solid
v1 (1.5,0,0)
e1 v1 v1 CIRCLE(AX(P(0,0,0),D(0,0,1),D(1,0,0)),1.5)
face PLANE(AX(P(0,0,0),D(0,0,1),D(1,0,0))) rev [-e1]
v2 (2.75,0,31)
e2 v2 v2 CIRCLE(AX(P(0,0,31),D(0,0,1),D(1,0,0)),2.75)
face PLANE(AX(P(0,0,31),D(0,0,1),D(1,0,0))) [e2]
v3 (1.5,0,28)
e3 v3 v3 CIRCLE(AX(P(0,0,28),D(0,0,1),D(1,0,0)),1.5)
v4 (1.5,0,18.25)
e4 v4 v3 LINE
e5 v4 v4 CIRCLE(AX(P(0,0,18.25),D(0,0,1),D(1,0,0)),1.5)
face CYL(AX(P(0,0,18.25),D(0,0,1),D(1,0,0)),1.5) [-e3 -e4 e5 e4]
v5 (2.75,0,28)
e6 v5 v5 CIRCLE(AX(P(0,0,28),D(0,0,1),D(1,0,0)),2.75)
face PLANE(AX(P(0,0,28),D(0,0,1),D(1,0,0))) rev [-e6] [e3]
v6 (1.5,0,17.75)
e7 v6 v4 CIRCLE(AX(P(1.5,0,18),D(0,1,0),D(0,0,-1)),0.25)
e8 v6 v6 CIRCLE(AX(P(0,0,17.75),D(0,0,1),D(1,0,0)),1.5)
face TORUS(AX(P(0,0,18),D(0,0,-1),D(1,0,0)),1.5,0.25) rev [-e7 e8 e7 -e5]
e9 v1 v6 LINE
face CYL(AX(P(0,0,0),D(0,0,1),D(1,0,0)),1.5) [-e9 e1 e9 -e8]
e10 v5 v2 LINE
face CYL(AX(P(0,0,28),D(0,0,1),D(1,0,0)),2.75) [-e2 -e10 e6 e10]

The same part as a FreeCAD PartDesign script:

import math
import FreeCAD as App
import Part
import Sketcher

V = App.Vector

doc = App.newDocument("Part")
body = doc.addObject("PartDesign::Body", "Body")

sketch1 = body.newObject("Sketcher::SketchObject", "Sketch")
sketch1.AttachmentSupport = (doc.getObject("XZ_Plane"), [""])
sketch1.MapMode = "FlatFace"
sketch1.addGeometry([
    Part.LineSegment(V(0, 31, 0), V(0, 0, 0)),
    Part.LineSegment(V(0, 0, 0), V(1.5, 0, 0)),
    Part.LineSegment(V(1.5, 0, 0), V(1.5, 17.75, 0)),
    Part.ArcOfCircle(Part.Circle(V(1.5, 18, 0), V(0, 0, 1), 0.25), math.radians(90), math.radians(270)),
    Part.LineSegment(V(1.5, 18.25, 0), V(1.5, 28, 0)),
    Part.LineSegment(V(1.5, 28, 0), V(2.75, 28, 0)),
    Part.LineSegment(V(2.75, 28, 0), V(2.75, 31, 0)),
    Part.LineSegment(V(2.75, 31, 0), V(0, 31, 0)),
], False)
sketch1.addConstraint([
    Sketcher.Constraint("Coincident", 0, 2, 1, 1),
    Sketcher.Constraint("Coincident", 1, 2, 2, 1),
    Sketcher.Constraint("Coincident", 2, 2, 3, 2),
    Sketcher.Constraint("Coincident", 3, 1, 4, 1),
    Sketcher.Constraint("Coincident", 4, 2, 5, 1),
    Sketcher.Constraint("Coincident", 5, 2, 6, 1),
    Sketcher.Constraint("Coincident", 6, 2, 7, 1),
    Sketcher.Constraint("Coincident", 7, 2, 0, 1),
    Sketcher.Constraint("Vertical", 0),
    Sketcher.Constraint("Horizontal", 1),
    Sketcher.Constraint("Vertical", 2),
    Sketcher.Constraint("Vertical", 4),
    Sketcher.Constraint("Horizontal", 5),
    Sketcher.Constraint("Vertical", 6),
    Sketcher.Constraint("Horizontal", 7),
    Sketcher.Constraint("Coincident", 0, 2, -1, 1),
    Sketcher.Constraint("Vertical", 3, 3, 1, 2),
    Sketcher.Constraint("Vertical", 2, 2, 3, 1),
    Sketcher.Constraint("DistanceY", 0, 2, 0, 1, 31.0),
    Sketcher.Constraint("DistanceY", 6, 1, 6, 2, 3.0),
    Sketcher.Constraint("Radius", 3, 0.25),
    Sketcher.Constraint("DistanceX", 1, 1, 1, 2, 1.5),
    Sketcher.Constraint("DistanceY", -1, 1, 3, 3, 18.0),
    Sketcher.Constraint("DistanceX", 5, 1, 5, 2, 1.25),
])
revolution = body.newObject("PartDesign::Revolution", "Revolution")
revolution.Profile = sketch1
revolution.ReferenceAxis = (sketch1, ["V_Axis"])
revolution.Angle = 360

doc.recompute()
